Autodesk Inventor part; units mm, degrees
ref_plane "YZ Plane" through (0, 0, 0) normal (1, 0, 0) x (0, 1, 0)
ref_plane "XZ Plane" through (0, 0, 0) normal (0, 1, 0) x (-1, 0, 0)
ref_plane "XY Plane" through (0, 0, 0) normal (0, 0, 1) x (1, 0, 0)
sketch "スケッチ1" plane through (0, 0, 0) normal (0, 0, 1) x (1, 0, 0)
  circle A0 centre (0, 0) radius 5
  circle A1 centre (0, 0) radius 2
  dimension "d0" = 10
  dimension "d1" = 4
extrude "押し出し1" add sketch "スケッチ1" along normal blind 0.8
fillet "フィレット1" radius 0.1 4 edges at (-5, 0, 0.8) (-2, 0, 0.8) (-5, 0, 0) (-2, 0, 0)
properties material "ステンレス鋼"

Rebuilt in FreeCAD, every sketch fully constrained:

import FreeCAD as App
import Part
import Sketcher


def edges_at(feature, points):
    """Names of the edges that pass closest to the given points."""
    edges = feature.Shape.Edges
    near = lambda p: min(range(len(edges)), key=lambda i: edges[i].distToShape(Part.Vertex(*p))[0])
    return sorted({f"Edge{near(p) + 1}" for p in points})

doc = App.newDocument("Part")
body = doc.addObject("PartDesign::Body", "Body")

# Sketch on XY plane
sketch1 = body.newObject("Sketcher::SketchObject", "Sketch")
sketch1.AttachmentSupport = (doc.getObject("XY_Plane"), [""])
sketch1.MapMode = "FlatFace"
sketch1.addGeometry([
    Part.Circle(App.Vector(0, 0, 0), App.Vector(0, 0, 1), 5),
    Part.Circle(App.Vector(0, 0, 0), App.Vector(0, 0, 1), 2),
], False)
sketch1.addConstraint([
    Sketcher.Constraint("Coincident", 0, 3, -1, 1),
    Sketcher.Constraint("Coincident", 1, 3, -1, 1),
    Sketcher.Constraint("Diameter", 0, 10.0),
    Sketcher.Constraint("Diameter", 1, 4.0),
])
pad1 = body.newObject("PartDesign::Pad", "Pad")
pad1.Profile = sketch1
pad1.Length = 0.8
doc.recompute()

fillet = body.newObject("PartDesign::Fillet", "Fillet")
fillet.Base = (pad1, edges_at(pad1, [
    (-5, 0, 0.8),
    (-2, 0, 0.8),
    (-5, 0, 0),
    (-2, 0, 0),
]))
fillet.Radius = 0.1

doc.recompute()
